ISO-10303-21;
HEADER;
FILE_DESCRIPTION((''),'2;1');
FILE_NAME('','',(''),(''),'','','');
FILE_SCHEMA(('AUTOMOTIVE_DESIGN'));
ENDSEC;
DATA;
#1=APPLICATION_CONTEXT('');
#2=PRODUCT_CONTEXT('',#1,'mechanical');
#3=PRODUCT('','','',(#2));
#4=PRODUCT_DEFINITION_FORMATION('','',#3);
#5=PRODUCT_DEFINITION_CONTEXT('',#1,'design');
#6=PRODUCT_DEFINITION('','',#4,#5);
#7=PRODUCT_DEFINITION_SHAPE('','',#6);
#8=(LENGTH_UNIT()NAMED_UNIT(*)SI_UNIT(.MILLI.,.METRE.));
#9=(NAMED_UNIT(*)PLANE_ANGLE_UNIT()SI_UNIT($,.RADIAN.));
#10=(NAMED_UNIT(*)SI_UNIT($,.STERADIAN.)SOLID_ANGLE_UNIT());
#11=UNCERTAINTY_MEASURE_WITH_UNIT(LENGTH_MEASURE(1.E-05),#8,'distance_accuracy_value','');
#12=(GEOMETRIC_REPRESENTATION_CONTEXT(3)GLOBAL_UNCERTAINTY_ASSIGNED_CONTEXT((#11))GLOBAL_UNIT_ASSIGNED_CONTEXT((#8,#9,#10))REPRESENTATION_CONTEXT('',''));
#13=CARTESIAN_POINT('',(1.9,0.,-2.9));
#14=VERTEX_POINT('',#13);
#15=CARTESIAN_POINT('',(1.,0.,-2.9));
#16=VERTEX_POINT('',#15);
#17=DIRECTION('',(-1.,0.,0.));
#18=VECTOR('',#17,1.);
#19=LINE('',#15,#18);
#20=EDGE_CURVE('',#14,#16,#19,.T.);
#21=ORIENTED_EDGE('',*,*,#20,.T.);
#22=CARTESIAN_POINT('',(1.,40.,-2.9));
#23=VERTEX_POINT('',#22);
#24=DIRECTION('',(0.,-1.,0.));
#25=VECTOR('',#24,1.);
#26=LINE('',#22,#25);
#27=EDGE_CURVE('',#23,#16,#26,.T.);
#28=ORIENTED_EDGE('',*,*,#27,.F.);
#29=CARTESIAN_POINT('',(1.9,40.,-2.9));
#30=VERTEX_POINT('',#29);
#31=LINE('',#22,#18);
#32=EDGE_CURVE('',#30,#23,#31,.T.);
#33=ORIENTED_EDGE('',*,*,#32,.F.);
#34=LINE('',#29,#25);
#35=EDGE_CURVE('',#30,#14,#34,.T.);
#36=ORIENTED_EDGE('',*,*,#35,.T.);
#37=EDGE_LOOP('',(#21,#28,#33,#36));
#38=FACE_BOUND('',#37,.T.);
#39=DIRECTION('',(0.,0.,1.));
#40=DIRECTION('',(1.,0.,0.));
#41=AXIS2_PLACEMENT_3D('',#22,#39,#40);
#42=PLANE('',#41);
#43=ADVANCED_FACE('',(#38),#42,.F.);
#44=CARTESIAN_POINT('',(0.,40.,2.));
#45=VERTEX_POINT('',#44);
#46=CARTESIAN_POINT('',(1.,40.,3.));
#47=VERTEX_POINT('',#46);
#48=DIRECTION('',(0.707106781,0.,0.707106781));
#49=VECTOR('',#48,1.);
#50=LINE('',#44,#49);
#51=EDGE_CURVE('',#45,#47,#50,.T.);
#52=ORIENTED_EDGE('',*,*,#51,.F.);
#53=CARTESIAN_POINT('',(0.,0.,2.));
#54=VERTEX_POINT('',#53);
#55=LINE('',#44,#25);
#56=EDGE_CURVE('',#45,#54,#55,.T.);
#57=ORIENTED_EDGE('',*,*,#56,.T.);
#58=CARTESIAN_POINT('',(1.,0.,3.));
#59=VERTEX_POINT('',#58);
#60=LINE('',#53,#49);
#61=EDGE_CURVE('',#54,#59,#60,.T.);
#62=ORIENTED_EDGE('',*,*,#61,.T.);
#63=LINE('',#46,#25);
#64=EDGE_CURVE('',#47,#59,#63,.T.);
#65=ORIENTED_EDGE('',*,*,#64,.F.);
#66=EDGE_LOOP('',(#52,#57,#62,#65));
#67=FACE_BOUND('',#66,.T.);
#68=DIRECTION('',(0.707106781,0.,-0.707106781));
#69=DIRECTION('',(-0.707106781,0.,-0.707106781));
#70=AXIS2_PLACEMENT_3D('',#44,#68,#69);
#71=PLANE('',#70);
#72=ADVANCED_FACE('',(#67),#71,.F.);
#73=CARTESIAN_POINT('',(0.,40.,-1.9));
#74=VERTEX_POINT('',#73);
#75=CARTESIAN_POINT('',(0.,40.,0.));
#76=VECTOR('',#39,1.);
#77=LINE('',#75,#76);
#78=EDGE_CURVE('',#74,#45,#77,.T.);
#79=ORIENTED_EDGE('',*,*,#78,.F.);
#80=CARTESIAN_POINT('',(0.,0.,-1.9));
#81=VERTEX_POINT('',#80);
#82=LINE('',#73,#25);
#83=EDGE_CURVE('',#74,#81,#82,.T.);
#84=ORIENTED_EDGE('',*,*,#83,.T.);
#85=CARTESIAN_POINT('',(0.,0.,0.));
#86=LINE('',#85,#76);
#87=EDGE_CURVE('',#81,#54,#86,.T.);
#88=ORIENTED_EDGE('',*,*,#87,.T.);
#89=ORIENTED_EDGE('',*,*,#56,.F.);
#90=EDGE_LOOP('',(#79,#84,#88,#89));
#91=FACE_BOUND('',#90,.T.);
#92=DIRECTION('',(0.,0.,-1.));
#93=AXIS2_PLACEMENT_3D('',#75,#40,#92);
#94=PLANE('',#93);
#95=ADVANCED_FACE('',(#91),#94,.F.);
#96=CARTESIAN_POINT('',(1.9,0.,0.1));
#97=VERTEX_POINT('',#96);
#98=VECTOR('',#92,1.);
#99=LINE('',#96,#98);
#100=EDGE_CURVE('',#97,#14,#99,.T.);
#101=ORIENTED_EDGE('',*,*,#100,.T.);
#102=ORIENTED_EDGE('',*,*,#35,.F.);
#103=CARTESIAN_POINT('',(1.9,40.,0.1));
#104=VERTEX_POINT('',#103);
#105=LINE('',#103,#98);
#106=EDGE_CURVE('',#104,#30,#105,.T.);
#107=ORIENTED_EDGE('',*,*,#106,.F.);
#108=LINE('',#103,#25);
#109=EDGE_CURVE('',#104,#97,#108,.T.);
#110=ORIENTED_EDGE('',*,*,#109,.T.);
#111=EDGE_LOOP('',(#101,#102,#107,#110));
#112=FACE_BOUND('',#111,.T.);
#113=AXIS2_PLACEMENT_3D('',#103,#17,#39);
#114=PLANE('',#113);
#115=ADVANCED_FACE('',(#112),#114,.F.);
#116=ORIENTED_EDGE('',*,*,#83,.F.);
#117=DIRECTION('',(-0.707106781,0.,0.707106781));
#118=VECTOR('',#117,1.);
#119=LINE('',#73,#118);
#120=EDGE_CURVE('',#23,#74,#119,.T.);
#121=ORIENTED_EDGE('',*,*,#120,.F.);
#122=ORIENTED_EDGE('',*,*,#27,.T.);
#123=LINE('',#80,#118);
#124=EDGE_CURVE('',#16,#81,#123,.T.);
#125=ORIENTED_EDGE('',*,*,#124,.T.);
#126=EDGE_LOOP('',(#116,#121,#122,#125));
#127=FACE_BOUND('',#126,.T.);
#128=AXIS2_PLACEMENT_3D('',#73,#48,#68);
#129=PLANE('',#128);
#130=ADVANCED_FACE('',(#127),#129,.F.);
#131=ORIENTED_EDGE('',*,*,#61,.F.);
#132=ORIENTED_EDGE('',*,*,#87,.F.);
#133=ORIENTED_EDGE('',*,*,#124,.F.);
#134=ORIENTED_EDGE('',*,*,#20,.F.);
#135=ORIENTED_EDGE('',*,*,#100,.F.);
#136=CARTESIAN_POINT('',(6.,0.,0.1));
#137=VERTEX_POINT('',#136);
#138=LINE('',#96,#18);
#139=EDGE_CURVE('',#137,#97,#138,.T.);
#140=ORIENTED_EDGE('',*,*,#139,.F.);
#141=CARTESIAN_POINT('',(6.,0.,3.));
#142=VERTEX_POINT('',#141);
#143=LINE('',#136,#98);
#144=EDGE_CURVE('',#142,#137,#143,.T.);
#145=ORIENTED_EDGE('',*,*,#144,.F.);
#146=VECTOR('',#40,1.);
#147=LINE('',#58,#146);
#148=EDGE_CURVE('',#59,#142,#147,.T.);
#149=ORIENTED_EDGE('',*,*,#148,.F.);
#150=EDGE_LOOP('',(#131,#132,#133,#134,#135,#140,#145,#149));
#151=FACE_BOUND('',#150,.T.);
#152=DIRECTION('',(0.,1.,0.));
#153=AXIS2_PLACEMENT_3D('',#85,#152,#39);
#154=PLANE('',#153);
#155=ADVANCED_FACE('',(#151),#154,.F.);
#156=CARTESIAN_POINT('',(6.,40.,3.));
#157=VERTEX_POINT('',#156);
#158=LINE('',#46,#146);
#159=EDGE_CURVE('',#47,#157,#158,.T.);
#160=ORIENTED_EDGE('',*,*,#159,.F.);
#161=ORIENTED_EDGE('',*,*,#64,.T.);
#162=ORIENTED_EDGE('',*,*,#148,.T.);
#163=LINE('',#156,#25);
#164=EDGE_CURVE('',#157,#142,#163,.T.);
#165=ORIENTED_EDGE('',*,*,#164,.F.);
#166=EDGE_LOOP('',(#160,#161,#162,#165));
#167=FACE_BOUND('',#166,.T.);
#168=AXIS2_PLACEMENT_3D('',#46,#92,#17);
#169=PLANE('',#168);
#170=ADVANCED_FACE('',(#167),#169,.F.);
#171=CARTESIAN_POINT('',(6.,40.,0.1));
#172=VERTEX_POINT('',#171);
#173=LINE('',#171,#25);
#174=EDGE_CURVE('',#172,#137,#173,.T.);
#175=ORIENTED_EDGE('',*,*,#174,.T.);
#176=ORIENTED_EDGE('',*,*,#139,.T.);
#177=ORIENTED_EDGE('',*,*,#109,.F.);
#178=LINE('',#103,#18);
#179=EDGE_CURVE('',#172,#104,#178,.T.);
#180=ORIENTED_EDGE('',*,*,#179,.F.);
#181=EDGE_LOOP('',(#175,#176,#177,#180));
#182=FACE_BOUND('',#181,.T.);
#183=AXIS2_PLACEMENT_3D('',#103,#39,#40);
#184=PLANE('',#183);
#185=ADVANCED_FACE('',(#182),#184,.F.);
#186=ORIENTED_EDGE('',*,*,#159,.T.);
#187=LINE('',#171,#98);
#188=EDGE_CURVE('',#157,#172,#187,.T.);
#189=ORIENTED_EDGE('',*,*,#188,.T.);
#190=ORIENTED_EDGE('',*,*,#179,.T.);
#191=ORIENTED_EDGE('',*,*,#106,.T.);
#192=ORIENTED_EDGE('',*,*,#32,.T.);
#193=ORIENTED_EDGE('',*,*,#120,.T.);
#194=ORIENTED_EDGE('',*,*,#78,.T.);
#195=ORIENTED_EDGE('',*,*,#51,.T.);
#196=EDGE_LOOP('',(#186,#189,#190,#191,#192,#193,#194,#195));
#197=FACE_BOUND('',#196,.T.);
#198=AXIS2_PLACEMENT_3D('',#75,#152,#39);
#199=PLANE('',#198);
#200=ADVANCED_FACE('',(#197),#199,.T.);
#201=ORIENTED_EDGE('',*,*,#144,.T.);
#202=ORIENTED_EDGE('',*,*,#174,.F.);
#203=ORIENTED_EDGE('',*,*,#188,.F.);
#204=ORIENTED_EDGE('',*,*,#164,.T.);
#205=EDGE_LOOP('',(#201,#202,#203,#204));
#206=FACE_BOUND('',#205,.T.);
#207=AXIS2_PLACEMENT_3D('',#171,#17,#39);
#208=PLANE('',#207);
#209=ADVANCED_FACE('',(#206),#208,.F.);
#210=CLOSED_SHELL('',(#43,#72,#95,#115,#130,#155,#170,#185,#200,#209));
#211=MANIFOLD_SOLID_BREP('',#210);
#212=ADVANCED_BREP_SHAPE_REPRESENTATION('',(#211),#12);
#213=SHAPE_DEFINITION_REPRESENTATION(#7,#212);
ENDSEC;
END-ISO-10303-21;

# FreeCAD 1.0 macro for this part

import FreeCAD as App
import Part
import Sketcher

V = App.Vector

doc = App.newDocument("Part")
body = doc.addObject("PartDesign::Body", "Body")

# Sketch on XZ plane
sketch1 = body.newObject("Sketcher::SketchObject", "Sketch")
sketch1.AttachmentSupport = (doc.getObject("XZ_Plane"), [""])
sketch1.MapMode = "FlatFace"
sketch1.addGeometry(Part.LineSegment(V(0, 2, 0), V(1, 3, 0)), False)
sketch1.addGeometry(Part.LineSegment(V(1, 3, 0), V(6, 3, 0)), False)
sketch1.addGeometry(Part.LineSegment(V(6, 3, 0), V(6, 0.1, 0)), False)
sketch1.addGeometry(Part.LineSegment(V(6, 0.1, 0), V(1.9, 0.1, 0)), False)
sketch1.addGeometry(Part.LineSegment(V(1.9, 0.1, 0), V(1.9, -2.9, 0)), False)
sketch1.addGeometry(Part.LineSegment(V(1.9, -2.9, 0), V(1, -2.9, 0)), False)
sketch1.addGeometry(Part.LineSegment(V(1, -2.9, 0), V(0, -1.9, 0)), False)
sketch1.addGeometry(Part.LineSegment(V(0, -1.9, 0), V(0, 2, 0)), False)
sketch1.addConstraint(Sketcher.Constraint("Coincident", 0, 2, 1, 1))
sketch1.addConstraint(Sketcher.Constraint("Coincident", 1, 2, 2, 1))
sketch1.addConstraint(Sketcher.Constraint("Coincident", 2, 2, 3, 1))
sketch1.addConstraint(Sketcher.Constraint("Coincident", 3, 2, 4, 1))
sketch1.addConstraint(Sketcher.Constraint("Coincident", 4, 2, 5, 1))
sketch1.addConstraint(Sketcher.Constraint("Coincident", 5, 2, 6, 1))
sketch1.addConstraint(Sketcher.Constraint("Coincident", 6, 2, 7, 1))
sketch1.addConstraint(Sketcher.Constraint("Coincident", 7, 2, 0, 1))
sketch1.addConstraint(Sketcher.Constraint("Horizontal", 1))
sketch1.addConstraint(Sketcher.Constraint("Vertical", 2))
sketch1.addConstraint(Sketcher.Constraint("Horizontal", 3))
sketch1.addConstraint(Sketcher.Constraint("Vertical", 4))
sketch1.addConstraint(Sketcher.Constraint("Horizontal", 5))
sketch1.addConstraint(Sketcher.Constraint("Vertical", 7))
sketch1.addConstraint(Sketcher.Constraint("PointOnObject", 6, 2, -2))
sketch1.addConstraint(Sketcher.Constraint("Perpendicular", 0, 6))
sketch1.addConstraint(Sketcher.Constraint("Vertical", 0, 2, 5, 2))
sketch1.addConstraint(Sketcher.Constraint("Equal", 0, 6))
sketch1.addConstraint(Sketcher.Constraint("DistanceX", 1, 1, 1, 2, 5.0))
sketch1.addConstraint(Sketcher.Constraint("DistanceY", 4, 2, 4, 1, 3.0))
sketch1.addConstraint(Sketcher.Constraint("DistanceX", 3, 2, 3, 1, 4.1))
sketch1.addConstraint(Sketcher.Constraint("DistanceY", 2, 2, 2, 1, 2.9))
sketch1.addConstraint(Sketcher.Constraint("DistanceY", 7, 1, 7, 2, 3.9))
sketch1.addConstraint(Sketcher.Constraint("DistanceY", -1, 1, 0, 2, 3.0))
pad1 = body.newObject("PartDesign::Pad", "Pad")
pad1.Profile = sketch1
pad1.Length = 40
pad1.Reversed = True

doc.recompute()
